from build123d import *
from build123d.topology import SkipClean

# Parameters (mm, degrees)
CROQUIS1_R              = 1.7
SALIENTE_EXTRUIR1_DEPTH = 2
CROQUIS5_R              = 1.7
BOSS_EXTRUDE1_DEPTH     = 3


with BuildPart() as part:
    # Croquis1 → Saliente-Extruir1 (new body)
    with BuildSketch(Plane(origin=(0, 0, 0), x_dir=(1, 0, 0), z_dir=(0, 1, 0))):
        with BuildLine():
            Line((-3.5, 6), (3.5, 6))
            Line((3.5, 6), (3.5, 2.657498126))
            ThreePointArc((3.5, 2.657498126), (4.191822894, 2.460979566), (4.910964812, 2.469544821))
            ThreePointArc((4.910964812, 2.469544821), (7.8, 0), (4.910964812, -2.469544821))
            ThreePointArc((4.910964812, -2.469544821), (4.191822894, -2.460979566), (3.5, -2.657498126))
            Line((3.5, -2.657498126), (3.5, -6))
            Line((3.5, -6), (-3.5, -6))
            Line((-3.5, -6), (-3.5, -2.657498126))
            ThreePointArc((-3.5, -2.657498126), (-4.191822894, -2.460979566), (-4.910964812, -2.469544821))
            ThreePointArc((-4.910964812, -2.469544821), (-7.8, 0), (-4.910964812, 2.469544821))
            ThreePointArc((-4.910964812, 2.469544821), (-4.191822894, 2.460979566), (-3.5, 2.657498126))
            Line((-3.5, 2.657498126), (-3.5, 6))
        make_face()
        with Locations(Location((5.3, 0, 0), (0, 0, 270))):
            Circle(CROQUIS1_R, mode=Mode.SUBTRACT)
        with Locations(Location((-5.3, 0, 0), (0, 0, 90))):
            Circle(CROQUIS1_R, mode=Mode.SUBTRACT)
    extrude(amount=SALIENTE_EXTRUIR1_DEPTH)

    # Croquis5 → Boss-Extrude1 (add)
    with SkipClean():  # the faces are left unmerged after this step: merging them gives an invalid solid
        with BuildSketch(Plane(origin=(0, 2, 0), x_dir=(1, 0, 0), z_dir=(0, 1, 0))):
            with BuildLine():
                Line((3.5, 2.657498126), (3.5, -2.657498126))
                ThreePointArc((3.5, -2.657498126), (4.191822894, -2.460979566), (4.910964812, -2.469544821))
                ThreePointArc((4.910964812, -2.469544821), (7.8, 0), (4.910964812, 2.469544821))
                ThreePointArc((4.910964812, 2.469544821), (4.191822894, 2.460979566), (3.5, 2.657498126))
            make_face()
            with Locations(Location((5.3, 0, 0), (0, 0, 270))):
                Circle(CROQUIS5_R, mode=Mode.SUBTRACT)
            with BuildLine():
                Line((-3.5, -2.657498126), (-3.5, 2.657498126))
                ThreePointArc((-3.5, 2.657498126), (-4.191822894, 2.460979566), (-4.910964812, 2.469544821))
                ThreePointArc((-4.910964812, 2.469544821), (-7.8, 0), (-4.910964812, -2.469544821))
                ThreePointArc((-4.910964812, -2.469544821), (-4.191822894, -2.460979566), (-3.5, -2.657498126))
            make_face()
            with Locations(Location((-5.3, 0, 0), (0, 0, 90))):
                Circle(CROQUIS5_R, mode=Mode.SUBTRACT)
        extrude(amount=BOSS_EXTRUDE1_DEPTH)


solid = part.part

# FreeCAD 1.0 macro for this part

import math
import FreeCAD as App
import Part
import Sketcher
from FreeCAD import Vector

doc = App.newDocument("Part")
params = doc.addObject("Spreadsheet::Sheet", "Params")
for row, (alias, value) in enumerate([
    ("sketch1_diameter", "3.4 mm"),
    ("sketch1_radius", "2.5 mm"),
    ("sketch1_width", "7 mm"),
    ("pad1_length", "2 mm"),
    ("sketch2_diameter", "3.4 mm"),
    ("sketch2_radius", "2.5 mm"),
    ("pad2_length", "3 mm"),
], start=1):
    params.set(f"A{row}", alias)
    params.set(f"B{row}", "=" + value)
    params.setAlias(f"B{row}", alias)

body = doc.addObject("PartDesign::Body", "Body")

sketch1 = body.newObject("Sketcher::SketchObject", "Sketch")
sketch1.AttachmentSupport = (doc.getObject("XZ_Plane"), [""])
sketch1.MapMode = "FlatFace"
sketch1.addGeometry(Part.LineSegment(Vector(3.5, -6, 0), Vector(-3.5, -6, 0)), False)
sketch1.addGeometry(Part.LineSegment(Vector(-3.5, -6, 0), Vector(-3.5, -2.657498, 0)), False)
sketch1.addGeometry(Part.ArcOfCircle(Part.Circle(Vector(-4.52193, -4.93909, 0), Vector(0, 0, 1), 2.5), math.radians(65.872292), math.radians(98.952412)), False)
sketch1.addGeometry(Part.ArcOfCircle(Part.Circle(Vector(-5.3, 0, 0), Vector(0, 0, 1), 2.5), math.radians(81.047588), math.radians(278.952412)), False)
sketch1.addGeometry(Part.ArcOfCircle(Part.Circle(Vector(-4.52193, 4.93909, 0), Vector(0, 0, 1), 2.5), math.radians(-98.952412), math.radians(-65.872292)), False)
sketch1.addGeometry(Part.LineSegment(Vector(-3.5, 2.657498, 0), Vector(-3.5, 6, 0)), False)
sketch1.addGeometry(Part.LineSegment(Vector(-3.5, 6, 0), Vector(3.5, 6, 0)), False)
sketch1.addGeometry(Part.LineSegment(Vector(3.5, 6, 0), Vector(3.5, 2.657498, 0)), False)
sketch1.addGeometry(Part.ArcOfCircle(Part.Circle(Vector(4.52193, 4.93909, 0), Vector(0, 0, 1), 2.5), math.radians(-114.127708), math.radians(-81.047588)), False)
sketch1.addGeometry(Part.ArcOfCircle(Part.Circle(Vector(5.3, 0, 0), Vector(0, 0, 1), 2.5), math.radians(-98.952412), math.radians(98.952412)), False)
sketch1.addGeometry(Part.ArcOfCircle(Part.Circle(Vector(4.52193, -4.93909, 0), Vector(0, 0, 1), 2.5), math.radians(81.047588), math.radians(114.127708)), False)
sketch1.addGeometry(Part.LineSegment(Vector(3.5, -2.657498, 0), Vector(3.5, -6, 0)), False)
sketch1.addGeometry(Part.Circle(Vector(5.3, 0, 0), Vector(0, 0, 1), 1.7), False)
sketch1.addGeometry(Part.Circle(Vector(-5.3, 0, 0), Vector(0, 0, 1), 1.7), False)
sketch1.addConstraint(Sketcher.Constraint("Coincident", 0, 2, 1, 1))
sketch1.addConstraint(Sketcher.Constraint("Coincident", 1, 2, 2, 1))
sketch1.addConstraint(Sketcher.Constraint("Tangent", 2, 2, 3, 2))
sketch1.addConstraint(Sketcher.Constraint("Tangent", 3, 1, 4, 1))
sketch1.addConstraint(Sketcher.Constraint("Coincident", 4, 2, 5, 1))
sketch1.addConstraint(Sketcher.Constraint("Coincident", 5, 2, 6, 1))
sketch1.addConstraint(Sketcher.Constraint("Coincident", 6, 2, 7, 1))
sketch1.addConstraint(Sketcher.Constraint("Coincident", 7, 2, 8, 1))
sketch1.addConstraint(Sketcher.Constraint("Tangent", 8, 2, 9, 2))
sketch1.addConstraint(Sketcher.Constraint("Tangent", 9, 1, 10, 1))
sketch1.addConstraint(Sketcher.Constraint("Coincident", 10, 2, 11, 1))
sketch1.addConstraint(Sketcher.Constraint("Coincident", 11, 2, 0, 1))
sketch1.addConstraint(Sketcher.Constraint("Horizontal", 0))
sketch1.addConstraint(Sketcher.Constraint("Vertical", 1))
sketch1.addConstraint(Sketcher.Constraint("Vertical", 5))
sketch1.addConstraint(Sketcher.Constraint("Horizontal", 6))
sketch1.addConstraint(Sketcher.Constraint("Vertical", 7))
sketch1.addConstraint(Sketcher.Constraint("Vertical", 11))
sketch1.addConstraint(Sketcher.Constraint("Coincident", 12, 3, 9, 3))
sketch1.addConstraint(Sketcher.Constraint("Coincident", 13, 3, 3, 3))
sketch1.addConstraint(Sketcher.Constraint("Equal", 2, 3))
sketch1.addConstraint(Sketcher.Constraint("Equal", 3, 4))
sketch1.addConstraint(Sketcher.Constraint("Equal", 4, 8))
sketch1.addConstraint(Sketcher.Constraint("Equal", 8, 9))
sketch1.addConstraint(Sketcher.Constraint("Equal", 9, 10))
sketch1.addConstraint(Sketcher.Constraint("Equal", 12, 13))
sketch1.addConstraint(Sketcher.Constraint("Symmetric", 2, 3, 8, 3, -1, 1))
sketch1.addConstraint(Sketcher.Constraint("Symmetric", 4, 3, 10, 3, -1, 1))
sketch1.addConstraint(Sketcher.Constraint("Symmetric", 0, 2, 6, 2, -1, 1))
sketch1.addConstraint(Sketcher.Constraint("Symmetric", 4, 3, 8, 3, -2))
sketch1.addConstraint(Sketcher.Constraint("Horizontal", 4, 2, 7, 2))
sketch1.addConstraint(Sketcher.Constraint("Horizontal", 1, 2, 10, 2))
sketch1.addConstraint(Sketcher.Constraint("Diameter", 12, 3.4))
sketch1.addConstraint(Sketcher.Constraint("Radius", 2, 2.5))
sketch1.addConstraint(Sketcher.Constraint("DistanceX", 0, 2, 0, 1, 7.0))
sketch1.addConstraint(Sketcher.Constraint("DistanceY", 0, 2, -1, 1, 6.0))
sketch1.addConstraint(Sketcher.Constraint("DistanceX", 3, 3, -1, 1, 5.3))
sketch1.addConstraint(Sketcher.Constraint("DistanceY", 1, 1, 1, 2, 3.342502))
sketch1.setExpression("Constraints[32]", "Params.sketch1_diameter")
sketch1.setExpression("Constraints[33]", "Params.sketch1_radius")
sketch1.setExpression("Constraints[34]", "Params.sketch1_width")
pad1 = body.newObject("PartDesign::Pad", "Pad")
pad1.Profile = sketch1
pad1.setExpression("Length", "Params.pad1_length")
pad1.Reversed = True

sketch2 = body.newObject("Sketcher::SketchObject", "Sketch001")
sketch2.AttachmentSupport = (doc.getObject("XZ_Plane"), [""])
sketch2.MapMode = "FlatFace"
sketch2.AttachmentOffset = App.Placement(Vector(0, 0, -2), App.Rotation())
sketch2.addGeometry(Part.LineSegment(Vector(3.5, -2.657498, 0), Vector(3.5, 2.657498, 0)), False)
sketch2.addGeometry(Part.ArcOfCircle(Part.Circle(Vector(4.52193, 4.93909, 0), Vector(0, 0, 1), 2.5), math.radians(-114.127708), math.radians(-81.047588)), False)
sketch2.addGeometry(Part.ArcOfCircle(Part.Circle(Vector(5.3, 0, 0), Vector(0, 0, 1), 2.5), math.radians(-98.952412), math.radians(98.952412)), False)
sketch2.addGeometry(Part.ArcOfCircle(Part.Circle(Vector(4.52193, -4.93909, 0), Vector(0, 0, 1), 2.5), math.radians(81.047588), math.radians(114.127708)), False)
sketch2.addGeometry(Part.Circle(Vector(5.3, 0, 0), Vector(0, 0, 1), 1.7), False)
sketch2.addGeometry(Part.LineSegment(Vector(-3.5, 2.657498, 0), Vector(-3.5, -2.657498, 0)), False)
sketch2.addGeometry(Part.ArcOfCircle(Part.Circle(Vector(-4.52193, -4.93909, 0), Vector(0, 0, 1), 2.5), math.radians(65.872292), math.radians(98.952412)), False)
sketch2.addGeometry(Part.ArcOfCircle(Part.Circle(Vector(-5.3, 0, 0), Vector(0, 0, 1), 2.5), math.radians(81.047588), math.radians(278.952412)), False)
sketch2.addGeometry(Part.ArcOfCircle(Part.Circle(Vector(-4.52193, 4.93909, 0), Vector(0, 0, 1), 2.5), math.radians(-98.952412), math.radians(-65.872292)), False)
sketch2.addGeometry(Part.Circle(Vector(-5.3, 0, 0), Vector(0, 0, 1), 1.7), False)
sketch2.addConstraint(Sketcher.Constraint("Coincident", 0, 2, 1, 1))
sketch2.addConstraint(Sketcher.Constraint("Tangent", 1, 2, 2, 2))
sketch2.addConstraint(Sketcher.Constraint("Tangent", 2, 1, 3, 1))
sketch2.addConstraint(Sketcher.Constraint("Coincident", 3, 2, 0, 1))
sketch2.addConstraint(Sketcher.Constraint("Coincident", 5, 2, 6, 1))
sketch2.addConstraint(Sketcher.Constraint("Tangent", 6, 2, 7, 2))
sketch2.addConstraint(Sketcher.Constraint("Tangent", 7, 1, 8, 1))
sketch2.addConstraint(Sketcher.Constraint("Coincident", 8, 2, 5, 1))
sketch2.addConstraint(Sketcher.Constraint("Vertical", 0))
sketch2.addConstraint(Sketcher.Constraint("Vertical", 5))
sketch2.addConstraint(Sketcher.Constraint("Coincident", 4, 3, 2, 3))
sketch2.addConstraint(Sketcher.Constraint("Coincident", 9, 3, 7, 3))
sketch2.addConstraint(Sketcher.Constraint("Equal", 1, 2))
sketch2.addConstraint(Sketcher.Constraint("Equal", 2, 3))
sketch2.addConstraint(Sketcher.Constraint("Equal", 3, 6))
sketch2.addConstraint(Sketcher.Constraint("Equal", 6, 7))
sketch2.addConstraint(Sketcher.Constraint("Equal", 7, 8))
sketch2.addConstraint(Sketcher.Constraint("Equal", 4, 9))
sketch2.addConstraint(Sketcher.Constraint("Symmetric", 1, 3, 6, 3, -1, 1))
sketch2.addConstraint(Sketcher.Constraint("Symmetric", 3, 3, 8, 3, -1, 1))
sketch2.addConstraint(Sketcher.Constraint("Symmetric", 3, 3, 6, 3, -2))
sketch2.addConstraint(Sketcher.Constraint("Horizontal", 3, 2, 5, 2))
sketch2.addConstraint(Sketcher.Constraint("Diameter", 4, 3.4))
sketch2.addConstraint(Sketcher.Constraint("Radius", 1, 2.5))
sketch2.addConstraint(Sketcher.Constraint("DistanceX", 5, 2, 3, 2, 7.0))
sketch2.addConstraint(Sketcher.Constraint("DistanceX", -1, 1, 2, 3, 5.3))
sketch2.addConstraint(Sketcher.Constraint("DistanceY", -1, 1, 0, 2, 2.657498))
sketch2.setExpression("Constraints[22]", "Params.sketch2_diameter")
sketch2.setExpression("Constraints[23]", "Params.sketch2_radius")
pad2 = body.newObject("PartDesign::Pad", "Pad001")
pad2.Profile = sketch2
pad2.setExpression("Length", "Params.pad2_length")
pad2.Reversed = True

doc.recompute()
